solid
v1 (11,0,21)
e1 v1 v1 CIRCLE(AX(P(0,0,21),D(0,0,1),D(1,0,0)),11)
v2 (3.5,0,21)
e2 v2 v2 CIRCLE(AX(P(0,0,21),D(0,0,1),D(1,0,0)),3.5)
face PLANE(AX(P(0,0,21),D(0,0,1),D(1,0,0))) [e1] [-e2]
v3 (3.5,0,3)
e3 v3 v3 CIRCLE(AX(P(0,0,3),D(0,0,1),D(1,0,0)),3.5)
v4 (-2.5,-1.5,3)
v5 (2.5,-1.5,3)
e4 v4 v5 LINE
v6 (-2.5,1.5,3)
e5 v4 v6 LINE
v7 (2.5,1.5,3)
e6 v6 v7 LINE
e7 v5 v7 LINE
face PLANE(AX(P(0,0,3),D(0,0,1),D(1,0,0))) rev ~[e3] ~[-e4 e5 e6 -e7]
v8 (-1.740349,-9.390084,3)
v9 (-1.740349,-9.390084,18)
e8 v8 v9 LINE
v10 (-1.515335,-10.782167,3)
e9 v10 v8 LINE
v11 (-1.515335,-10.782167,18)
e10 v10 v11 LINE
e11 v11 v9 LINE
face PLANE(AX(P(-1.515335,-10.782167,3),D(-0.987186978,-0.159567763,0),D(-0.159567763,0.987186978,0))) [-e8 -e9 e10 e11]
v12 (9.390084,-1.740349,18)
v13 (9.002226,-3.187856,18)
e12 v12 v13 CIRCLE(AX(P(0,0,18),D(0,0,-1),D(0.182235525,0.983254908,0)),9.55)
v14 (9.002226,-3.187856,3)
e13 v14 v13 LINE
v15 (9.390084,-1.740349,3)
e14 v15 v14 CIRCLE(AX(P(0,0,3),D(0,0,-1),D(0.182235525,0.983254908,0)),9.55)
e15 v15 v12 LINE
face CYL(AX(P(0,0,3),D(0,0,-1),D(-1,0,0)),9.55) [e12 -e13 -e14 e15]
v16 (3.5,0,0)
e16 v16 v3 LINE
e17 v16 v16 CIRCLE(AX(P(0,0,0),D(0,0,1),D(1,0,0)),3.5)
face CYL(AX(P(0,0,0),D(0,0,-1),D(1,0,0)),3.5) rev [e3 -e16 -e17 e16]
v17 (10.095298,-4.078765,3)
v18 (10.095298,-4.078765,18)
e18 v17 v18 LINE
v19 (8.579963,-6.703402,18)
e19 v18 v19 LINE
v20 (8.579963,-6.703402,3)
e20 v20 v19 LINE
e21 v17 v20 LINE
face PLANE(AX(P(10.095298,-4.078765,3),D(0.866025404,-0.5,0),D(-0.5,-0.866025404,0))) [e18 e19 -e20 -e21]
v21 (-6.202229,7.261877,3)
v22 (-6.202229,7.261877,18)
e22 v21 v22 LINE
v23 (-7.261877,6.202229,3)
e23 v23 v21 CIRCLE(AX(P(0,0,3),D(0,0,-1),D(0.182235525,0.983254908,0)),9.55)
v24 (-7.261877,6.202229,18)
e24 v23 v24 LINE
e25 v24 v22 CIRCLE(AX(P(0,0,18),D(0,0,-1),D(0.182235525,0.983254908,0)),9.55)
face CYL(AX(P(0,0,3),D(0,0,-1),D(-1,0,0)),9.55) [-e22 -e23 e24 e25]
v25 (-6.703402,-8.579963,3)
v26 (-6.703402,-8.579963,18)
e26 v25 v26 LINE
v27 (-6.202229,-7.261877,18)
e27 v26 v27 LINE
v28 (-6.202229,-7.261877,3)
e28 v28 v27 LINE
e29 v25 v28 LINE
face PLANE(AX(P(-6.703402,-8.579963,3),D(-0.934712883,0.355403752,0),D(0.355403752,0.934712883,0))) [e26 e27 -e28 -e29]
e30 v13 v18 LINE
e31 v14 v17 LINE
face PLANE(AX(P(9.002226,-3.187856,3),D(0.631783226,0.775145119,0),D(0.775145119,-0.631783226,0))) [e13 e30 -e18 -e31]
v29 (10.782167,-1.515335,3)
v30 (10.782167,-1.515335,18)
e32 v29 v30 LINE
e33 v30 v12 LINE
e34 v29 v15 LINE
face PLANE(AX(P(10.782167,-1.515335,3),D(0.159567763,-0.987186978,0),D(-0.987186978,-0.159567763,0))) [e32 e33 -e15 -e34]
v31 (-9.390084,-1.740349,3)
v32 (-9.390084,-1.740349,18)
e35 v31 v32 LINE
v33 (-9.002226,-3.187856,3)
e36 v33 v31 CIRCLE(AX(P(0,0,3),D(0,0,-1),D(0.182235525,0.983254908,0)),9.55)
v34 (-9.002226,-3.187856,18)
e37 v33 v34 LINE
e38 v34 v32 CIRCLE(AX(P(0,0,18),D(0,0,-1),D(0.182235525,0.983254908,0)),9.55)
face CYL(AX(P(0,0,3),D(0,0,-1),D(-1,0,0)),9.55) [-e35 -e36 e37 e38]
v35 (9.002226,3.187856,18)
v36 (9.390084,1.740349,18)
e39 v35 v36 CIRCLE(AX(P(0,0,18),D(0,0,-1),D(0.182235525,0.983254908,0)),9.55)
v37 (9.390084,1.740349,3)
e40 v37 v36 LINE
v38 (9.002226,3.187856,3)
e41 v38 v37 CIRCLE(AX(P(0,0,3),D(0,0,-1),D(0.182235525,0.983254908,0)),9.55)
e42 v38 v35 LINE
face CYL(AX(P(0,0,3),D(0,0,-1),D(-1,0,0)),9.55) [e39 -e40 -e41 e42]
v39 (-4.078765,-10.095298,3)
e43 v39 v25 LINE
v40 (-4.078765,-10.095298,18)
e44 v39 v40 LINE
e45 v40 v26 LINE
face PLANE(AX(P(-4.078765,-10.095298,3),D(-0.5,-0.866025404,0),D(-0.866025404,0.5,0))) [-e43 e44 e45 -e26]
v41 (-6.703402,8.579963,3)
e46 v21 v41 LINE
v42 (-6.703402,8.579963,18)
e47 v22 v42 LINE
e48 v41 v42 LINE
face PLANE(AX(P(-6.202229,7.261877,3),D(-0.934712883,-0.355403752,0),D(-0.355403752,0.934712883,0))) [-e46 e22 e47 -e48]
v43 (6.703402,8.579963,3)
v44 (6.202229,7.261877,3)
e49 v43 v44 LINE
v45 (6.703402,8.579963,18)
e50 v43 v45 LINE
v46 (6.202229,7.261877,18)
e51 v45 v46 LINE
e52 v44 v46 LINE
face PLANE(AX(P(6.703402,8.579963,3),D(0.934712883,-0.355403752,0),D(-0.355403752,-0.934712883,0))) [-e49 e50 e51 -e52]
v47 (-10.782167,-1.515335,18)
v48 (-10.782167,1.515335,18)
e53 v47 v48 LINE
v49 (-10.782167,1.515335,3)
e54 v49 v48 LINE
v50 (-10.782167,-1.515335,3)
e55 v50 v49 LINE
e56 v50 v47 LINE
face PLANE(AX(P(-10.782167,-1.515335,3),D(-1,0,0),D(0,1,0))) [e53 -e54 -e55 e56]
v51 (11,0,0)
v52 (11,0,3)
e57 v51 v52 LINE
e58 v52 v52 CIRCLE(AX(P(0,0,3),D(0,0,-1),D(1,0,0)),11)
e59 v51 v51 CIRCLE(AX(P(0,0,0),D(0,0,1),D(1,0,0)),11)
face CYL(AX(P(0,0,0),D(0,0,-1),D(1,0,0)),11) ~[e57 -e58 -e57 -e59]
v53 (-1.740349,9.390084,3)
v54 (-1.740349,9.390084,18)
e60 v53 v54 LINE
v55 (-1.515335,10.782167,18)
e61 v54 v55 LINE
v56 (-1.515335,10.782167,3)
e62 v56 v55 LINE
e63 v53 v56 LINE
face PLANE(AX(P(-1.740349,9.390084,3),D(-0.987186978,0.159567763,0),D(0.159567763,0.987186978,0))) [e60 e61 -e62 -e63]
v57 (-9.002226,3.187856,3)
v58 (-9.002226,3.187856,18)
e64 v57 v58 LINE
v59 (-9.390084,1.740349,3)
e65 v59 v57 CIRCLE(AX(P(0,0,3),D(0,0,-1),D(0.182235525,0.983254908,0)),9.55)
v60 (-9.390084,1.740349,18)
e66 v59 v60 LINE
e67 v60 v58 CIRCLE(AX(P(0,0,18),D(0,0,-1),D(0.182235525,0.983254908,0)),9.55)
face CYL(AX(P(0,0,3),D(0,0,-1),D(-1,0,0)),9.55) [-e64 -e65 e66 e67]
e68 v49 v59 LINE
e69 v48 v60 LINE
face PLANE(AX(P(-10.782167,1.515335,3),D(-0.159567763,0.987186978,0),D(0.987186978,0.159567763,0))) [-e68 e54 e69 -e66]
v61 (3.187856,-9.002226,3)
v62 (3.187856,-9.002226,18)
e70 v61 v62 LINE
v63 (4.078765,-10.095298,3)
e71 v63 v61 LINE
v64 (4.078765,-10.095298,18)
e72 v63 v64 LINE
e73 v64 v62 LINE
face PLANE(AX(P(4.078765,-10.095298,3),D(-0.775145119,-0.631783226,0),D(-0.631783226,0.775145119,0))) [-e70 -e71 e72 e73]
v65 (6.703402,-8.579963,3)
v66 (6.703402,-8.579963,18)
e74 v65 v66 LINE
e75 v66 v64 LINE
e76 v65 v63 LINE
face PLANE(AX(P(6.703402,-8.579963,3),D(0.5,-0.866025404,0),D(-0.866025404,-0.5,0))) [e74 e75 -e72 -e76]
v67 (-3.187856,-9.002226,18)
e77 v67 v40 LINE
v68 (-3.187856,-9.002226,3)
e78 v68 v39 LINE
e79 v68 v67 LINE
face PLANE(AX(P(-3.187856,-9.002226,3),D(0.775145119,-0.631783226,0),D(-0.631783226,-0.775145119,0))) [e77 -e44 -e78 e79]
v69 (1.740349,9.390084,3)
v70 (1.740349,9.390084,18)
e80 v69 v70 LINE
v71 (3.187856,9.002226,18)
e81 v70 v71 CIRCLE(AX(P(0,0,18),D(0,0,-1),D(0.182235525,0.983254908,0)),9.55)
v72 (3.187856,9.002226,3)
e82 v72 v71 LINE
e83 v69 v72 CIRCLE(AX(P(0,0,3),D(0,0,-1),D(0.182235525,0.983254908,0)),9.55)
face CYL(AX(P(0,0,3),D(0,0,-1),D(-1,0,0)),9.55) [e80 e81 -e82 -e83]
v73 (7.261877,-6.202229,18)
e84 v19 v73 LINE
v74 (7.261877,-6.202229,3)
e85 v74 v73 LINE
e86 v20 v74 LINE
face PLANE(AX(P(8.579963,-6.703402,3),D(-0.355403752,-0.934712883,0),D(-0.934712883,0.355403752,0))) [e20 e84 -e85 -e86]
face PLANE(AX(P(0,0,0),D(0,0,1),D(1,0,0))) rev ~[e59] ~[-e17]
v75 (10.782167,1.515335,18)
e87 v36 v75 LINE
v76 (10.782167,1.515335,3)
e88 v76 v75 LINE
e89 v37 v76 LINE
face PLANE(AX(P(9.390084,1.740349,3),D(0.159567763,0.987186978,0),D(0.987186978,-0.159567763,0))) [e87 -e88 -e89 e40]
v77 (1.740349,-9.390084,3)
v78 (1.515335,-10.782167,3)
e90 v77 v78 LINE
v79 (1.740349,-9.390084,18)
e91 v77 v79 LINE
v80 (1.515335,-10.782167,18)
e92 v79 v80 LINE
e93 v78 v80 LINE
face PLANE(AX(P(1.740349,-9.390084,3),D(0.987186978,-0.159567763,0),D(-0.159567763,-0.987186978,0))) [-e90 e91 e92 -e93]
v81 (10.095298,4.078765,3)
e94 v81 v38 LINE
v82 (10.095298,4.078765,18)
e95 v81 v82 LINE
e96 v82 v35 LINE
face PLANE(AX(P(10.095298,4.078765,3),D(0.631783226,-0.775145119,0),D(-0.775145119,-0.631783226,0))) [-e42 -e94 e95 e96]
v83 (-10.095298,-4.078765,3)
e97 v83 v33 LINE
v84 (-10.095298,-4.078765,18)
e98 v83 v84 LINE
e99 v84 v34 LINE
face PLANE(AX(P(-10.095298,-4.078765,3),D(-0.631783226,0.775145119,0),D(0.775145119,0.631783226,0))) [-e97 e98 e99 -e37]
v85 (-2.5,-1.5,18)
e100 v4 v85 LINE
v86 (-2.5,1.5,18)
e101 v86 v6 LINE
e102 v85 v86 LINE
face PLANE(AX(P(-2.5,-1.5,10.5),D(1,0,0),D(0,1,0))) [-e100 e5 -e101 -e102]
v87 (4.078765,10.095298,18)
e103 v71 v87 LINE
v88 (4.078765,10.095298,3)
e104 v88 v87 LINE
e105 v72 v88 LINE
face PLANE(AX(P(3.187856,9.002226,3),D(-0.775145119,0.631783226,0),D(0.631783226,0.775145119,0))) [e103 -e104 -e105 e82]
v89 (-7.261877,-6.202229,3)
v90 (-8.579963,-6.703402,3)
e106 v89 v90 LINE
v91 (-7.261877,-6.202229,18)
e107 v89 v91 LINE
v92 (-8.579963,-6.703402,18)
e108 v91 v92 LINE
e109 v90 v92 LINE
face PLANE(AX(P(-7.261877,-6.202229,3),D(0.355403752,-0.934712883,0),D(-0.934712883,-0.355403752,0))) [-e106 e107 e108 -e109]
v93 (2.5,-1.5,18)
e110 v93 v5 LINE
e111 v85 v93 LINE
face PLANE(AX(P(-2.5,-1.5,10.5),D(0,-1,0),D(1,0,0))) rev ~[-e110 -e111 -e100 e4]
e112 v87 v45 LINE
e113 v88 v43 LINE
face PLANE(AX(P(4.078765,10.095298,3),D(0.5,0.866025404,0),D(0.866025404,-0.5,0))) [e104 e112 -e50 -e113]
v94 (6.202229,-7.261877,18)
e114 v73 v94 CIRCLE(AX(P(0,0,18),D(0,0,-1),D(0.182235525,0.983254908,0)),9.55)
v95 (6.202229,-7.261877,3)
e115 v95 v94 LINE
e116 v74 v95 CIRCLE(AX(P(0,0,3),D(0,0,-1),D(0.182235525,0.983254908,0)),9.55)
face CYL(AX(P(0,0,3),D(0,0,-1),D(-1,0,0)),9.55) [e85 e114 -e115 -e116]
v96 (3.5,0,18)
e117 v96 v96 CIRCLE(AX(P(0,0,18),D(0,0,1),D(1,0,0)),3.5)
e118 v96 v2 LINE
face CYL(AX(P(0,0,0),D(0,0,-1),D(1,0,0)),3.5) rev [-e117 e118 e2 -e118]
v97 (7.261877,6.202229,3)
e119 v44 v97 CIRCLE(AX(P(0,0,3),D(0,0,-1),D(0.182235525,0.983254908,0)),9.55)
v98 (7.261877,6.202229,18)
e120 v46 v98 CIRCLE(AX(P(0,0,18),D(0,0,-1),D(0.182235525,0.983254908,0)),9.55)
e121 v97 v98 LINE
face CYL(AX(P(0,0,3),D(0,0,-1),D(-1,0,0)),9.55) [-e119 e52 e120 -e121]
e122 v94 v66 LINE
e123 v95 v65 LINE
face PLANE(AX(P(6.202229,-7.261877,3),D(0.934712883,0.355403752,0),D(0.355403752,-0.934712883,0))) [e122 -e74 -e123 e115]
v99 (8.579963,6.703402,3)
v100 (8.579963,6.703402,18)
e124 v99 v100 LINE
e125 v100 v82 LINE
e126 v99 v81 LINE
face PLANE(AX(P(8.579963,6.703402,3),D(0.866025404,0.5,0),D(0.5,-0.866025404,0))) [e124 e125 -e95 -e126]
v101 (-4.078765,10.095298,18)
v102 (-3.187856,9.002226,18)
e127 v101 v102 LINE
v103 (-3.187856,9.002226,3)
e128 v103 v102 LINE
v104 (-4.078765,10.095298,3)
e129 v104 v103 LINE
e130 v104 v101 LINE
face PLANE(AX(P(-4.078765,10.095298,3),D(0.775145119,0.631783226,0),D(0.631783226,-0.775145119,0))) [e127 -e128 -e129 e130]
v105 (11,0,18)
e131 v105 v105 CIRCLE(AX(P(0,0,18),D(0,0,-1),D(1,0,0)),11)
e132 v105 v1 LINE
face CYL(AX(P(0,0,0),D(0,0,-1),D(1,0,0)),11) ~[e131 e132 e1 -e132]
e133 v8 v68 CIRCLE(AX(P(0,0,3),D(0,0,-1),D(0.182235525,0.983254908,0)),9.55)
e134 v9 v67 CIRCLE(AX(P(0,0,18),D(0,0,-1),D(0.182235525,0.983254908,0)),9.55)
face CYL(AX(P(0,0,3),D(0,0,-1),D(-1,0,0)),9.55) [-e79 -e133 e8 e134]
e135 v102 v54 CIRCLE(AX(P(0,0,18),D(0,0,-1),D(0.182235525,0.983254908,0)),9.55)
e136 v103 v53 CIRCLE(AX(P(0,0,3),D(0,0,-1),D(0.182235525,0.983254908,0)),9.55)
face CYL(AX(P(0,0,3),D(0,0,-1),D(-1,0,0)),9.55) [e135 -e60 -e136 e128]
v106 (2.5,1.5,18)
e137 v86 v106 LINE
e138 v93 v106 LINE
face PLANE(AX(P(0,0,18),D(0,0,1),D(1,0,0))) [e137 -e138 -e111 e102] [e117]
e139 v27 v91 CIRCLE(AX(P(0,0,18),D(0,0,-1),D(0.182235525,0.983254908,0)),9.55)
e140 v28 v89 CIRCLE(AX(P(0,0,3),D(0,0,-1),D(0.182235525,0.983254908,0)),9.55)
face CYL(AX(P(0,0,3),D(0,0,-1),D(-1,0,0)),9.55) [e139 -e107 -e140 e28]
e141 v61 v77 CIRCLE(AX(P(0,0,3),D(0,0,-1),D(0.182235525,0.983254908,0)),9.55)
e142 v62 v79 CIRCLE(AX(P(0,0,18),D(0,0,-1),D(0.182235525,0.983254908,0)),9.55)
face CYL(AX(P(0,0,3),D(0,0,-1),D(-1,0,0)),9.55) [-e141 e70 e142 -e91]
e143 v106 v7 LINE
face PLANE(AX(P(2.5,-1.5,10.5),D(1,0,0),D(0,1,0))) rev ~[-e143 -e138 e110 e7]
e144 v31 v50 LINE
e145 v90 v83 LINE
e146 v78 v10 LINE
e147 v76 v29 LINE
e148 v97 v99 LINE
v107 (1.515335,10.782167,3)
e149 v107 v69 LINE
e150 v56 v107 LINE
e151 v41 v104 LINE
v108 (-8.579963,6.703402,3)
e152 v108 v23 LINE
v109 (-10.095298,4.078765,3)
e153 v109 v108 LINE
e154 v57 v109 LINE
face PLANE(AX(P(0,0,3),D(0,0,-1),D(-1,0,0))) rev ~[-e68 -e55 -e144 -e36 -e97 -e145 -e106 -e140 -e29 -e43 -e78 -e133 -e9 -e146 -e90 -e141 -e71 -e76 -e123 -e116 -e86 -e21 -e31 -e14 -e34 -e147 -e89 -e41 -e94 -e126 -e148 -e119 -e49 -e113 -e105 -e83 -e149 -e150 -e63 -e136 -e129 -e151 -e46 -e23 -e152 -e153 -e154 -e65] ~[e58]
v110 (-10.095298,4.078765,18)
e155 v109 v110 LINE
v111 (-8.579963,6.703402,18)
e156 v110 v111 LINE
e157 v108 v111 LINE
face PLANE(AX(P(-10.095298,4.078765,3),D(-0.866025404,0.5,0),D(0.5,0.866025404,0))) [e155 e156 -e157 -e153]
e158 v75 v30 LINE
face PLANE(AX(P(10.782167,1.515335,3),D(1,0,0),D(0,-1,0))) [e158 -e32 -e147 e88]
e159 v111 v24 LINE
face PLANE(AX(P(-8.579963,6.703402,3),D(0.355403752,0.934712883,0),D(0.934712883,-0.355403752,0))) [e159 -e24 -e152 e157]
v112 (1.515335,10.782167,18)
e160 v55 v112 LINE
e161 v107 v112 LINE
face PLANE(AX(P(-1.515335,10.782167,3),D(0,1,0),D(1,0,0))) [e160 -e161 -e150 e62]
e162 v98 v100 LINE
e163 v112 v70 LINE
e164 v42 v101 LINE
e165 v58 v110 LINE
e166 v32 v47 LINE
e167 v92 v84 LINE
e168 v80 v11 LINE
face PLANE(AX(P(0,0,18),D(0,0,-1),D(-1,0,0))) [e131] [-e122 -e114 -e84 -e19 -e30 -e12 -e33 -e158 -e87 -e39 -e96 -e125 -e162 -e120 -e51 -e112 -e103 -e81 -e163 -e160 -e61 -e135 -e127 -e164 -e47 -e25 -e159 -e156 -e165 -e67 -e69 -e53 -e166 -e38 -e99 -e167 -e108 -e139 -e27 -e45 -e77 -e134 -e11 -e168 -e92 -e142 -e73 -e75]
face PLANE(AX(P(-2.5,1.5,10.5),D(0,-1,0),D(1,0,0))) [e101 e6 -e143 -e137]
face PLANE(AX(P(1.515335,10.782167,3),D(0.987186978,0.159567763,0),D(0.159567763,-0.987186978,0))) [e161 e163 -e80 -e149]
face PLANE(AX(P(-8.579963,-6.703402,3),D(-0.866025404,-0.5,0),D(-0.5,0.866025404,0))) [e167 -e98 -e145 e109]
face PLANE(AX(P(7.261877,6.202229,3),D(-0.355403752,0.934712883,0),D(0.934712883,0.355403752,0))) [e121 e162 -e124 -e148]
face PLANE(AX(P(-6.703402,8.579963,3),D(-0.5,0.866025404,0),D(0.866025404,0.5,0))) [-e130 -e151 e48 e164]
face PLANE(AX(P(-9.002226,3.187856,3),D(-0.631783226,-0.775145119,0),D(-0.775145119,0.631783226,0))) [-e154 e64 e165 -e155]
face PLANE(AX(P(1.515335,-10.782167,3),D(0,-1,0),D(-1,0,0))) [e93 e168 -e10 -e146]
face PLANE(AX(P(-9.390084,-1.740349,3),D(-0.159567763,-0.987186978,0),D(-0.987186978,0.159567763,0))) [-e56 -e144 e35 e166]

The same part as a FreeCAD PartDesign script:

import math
import FreeCAD as App
import Part
import Sketcher
Q = App.Units.Quantity

doc = App.newDocument("Part")
body = doc.addObject("PartDesign::Body", "Body")

sketch1 = body.newObject("Sketcher::SketchObject", "Sketch")
sketch1.AttachmentSupport = (doc.getObject("XY_Plane"), [""])
sketch1.MapMode = "FlatFace"
sketch1.addGeometry([
    Part.Circle(App.Vector(0, 0, 0), App.Vector(0, 0, 1), 11),
    Part.Circle(App.Vector(0, 0, 0), App.Vector(0, 0, 1), 3.5),
], False)
sketch1.addConstraint([
    Sketcher.Constraint("Coincident", 0, 3, -1, 1),
    Sketcher.Constraint("Coincident", 1, 3, -1, 1),
    Sketcher.Constraint("Diameter", 0, Q("22 mm")),
    Sketcher.Constraint("Diameter", 1, Q("7 mm")),
])
pad1 = body.newObject("PartDesign::Pad", "Pad")
pad1.Profile = sketch1
pad1.Length = 21

sketch2 = body.newObject("Sketcher::SketchObject", "Sketch001")
sketch2.AttachmentSupport = (doc.getObject("XY_Plane"), [""])
sketch2.MapMode = "FlatFace"
sketch2.AttachmentOffset = App.Placement(App.Vector(0, 0, 3), App.Rotation())
sketch2.addGeometry([
    Part.Circle(App.Vector(0, 0, 0), App.Vector(0, 0, 1), 28),
    Part.Circle(App.Vector(0, 0, 0), App.Vector(0, 0, 1), 10),
], False)
sketch2.addConstraint([
    Sketcher.Constraint("Coincident", 0, 3, -1, 1),
    Sketcher.Constraint("Coincident", 1, 3, -1, 1),
    Sketcher.Constraint("Diameter", 0, Q("57 mm")),
    Sketcher.Constraint("Diameter", 1, Q("19.1 mm")),
])
pocket1 = body.newObject("PartDesign::Pocket", "Pocket")
pocket1.Profile = sketch2
pocket1.Length = 15
pocket1.Reversed = True

sketch3 = body.newObject("Sketcher::SketchObject", "Sketch002")
sketch3.AttachmentSupport = (doc.getObject("XY_Plane"), [""])
sketch3.MapMode = "FlatFace"
sketch3.AttachmentOffset = App.Placement(App.Vector(0, 0, 3), App.Rotation())
sketch3.addGeometry([
    Part.LineSegment(App.Vector(-1.5, 10.8, 0), App.Vector(-1.7, 9.4, 0)),
    Part.ArcOfCircle(Part.Circle(App.Vector(0, 0, 0), App.Vector(0, 0, 1), 9.5), math.radians(79), math.radians(101)),
    Part.LineSegment(App.Vector(1.7, 9.4, 0), App.Vector(1.5, 10.8, 0)),
    Part.LineSegment(App.Vector(1.5, 10.8, 0), App.Vector(-1.5, 10.8, 0)),
], False)
sketch3.addConstraint([
    Sketcher.Constraint("Coincident", 0, 2, 1, 2),
    Sketcher.Constraint("Coincident", 1, 1, 2, 1),
    Sketcher.Constraint("Coincident", 2, 2, 3, 1),
    Sketcher.Constraint("Coincident", 3, 2, 0, 1),
    Sketcher.Constraint("Horizontal", 3),
    Sketcher.Constraint("Coincident", 1, 3, -1, 1),
    Sketcher.Constraint("Horizontal", 0, 2, 1, 1),
    Sketcher.Constraint("Equal", 0, 2),
    Sketcher.Constraint("Radius", 1, Q("9.55 mm")),
    Sketcher.Constraint("DistanceX", 3, 2, 3, 1, Q("3.030669 mm")),
    Sketcher.Constraint("DistanceX", 0, 2, 1, 1, Q("3.480699 mm")),
    Sketcher.Constraint("Distance", 0, Q("1.410151 mm")),
])
pad2 = body.newObject("PartDesign::Pad", "Pad001")
pad2.Profile = sketch3
pad2.Length = 15
doc.recompute()

polarpattern = body.newObject("PartDesign::PolarPattern", "PolarPattern")
polarpattern.Originals = [pad2]
polarpattern.Axis = (doc.getObject("Z_Axis"), [""])
polarpattern.Angle = 360
polarpattern.Occurrences = 12
body.Tip = polarpattern

sketch4 = body.newObject("Sketcher::SketchObject", "Sketch003")
sketch4.AttachmentSupport = (doc.getObject("XY_Plane"), [""])
sketch4.MapMode = "FlatFace"
sketch4.AttachmentOffset = App.Placement(App.Vector(0, 0, 10.5), App.Rotation())
sketch4.addGeometry([
    Part.Circle(App.Vector(0, 0, 0), App.Vector(0, 0, 1), 3.5),
    Part.LineSegment(App.Vector(2.5, -1.5, 0), App.Vector(-2.5, -1.5, 0)),
    Part.LineSegment(App.Vector(-2.5, -1.5, 0), App.Vector(-2.5, 1.5, 0)),
    Part.LineSegment(App.Vector(-2.5, 1.5, 0), App.Vector(2.5, 1.5, 0)),
    Part.LineSegment(App.Vector(2.5, 1.5, 0), App.Vector(2.5, -1.5, 0)),
], False)
sketch4.addConstraint([
    Sketcher.Constraint("Coincident", 1, 2, 2, 1),
    Sketcher.Constraint("Coincident", 2, 2, 3, 1),
    Sketcher.Constraint("Coincident", 3, 2, 4, 1),
    Sketcher.Constraint("Coincident", 4, 2, 1, 1),
    Sketcher.Constraint("Horizontal", 1),
    Sketcher.Constraint("Vertical", 2),
    Sketcher.Constraint("Horizontal", 3),
    Sketcher.Constraint("Vertical", 4),
    Sketcher.Constraint("Coincident", 0, 3, -1, 1),
    Sketcher.Constraint("Symmetric", 1, 2, 3, 2, -1, 1),
    Sketcher.Constraint("Diameter", 0, Q("7 mm")),
    Sketcher.Constraint("DistanceX", 1, 2, 1, 1, Q("5 mm")),
    Sketcher.Constraint("DistanceY", 2, 1, 2, 2, Q("3 mm")),
])
pad3 = body.newObject("PartDesign::Pad", "Pad002")
pad3.Profile = sketch4
pad3.Length = 15
pad3.Midplane = True

doc.recompute()
